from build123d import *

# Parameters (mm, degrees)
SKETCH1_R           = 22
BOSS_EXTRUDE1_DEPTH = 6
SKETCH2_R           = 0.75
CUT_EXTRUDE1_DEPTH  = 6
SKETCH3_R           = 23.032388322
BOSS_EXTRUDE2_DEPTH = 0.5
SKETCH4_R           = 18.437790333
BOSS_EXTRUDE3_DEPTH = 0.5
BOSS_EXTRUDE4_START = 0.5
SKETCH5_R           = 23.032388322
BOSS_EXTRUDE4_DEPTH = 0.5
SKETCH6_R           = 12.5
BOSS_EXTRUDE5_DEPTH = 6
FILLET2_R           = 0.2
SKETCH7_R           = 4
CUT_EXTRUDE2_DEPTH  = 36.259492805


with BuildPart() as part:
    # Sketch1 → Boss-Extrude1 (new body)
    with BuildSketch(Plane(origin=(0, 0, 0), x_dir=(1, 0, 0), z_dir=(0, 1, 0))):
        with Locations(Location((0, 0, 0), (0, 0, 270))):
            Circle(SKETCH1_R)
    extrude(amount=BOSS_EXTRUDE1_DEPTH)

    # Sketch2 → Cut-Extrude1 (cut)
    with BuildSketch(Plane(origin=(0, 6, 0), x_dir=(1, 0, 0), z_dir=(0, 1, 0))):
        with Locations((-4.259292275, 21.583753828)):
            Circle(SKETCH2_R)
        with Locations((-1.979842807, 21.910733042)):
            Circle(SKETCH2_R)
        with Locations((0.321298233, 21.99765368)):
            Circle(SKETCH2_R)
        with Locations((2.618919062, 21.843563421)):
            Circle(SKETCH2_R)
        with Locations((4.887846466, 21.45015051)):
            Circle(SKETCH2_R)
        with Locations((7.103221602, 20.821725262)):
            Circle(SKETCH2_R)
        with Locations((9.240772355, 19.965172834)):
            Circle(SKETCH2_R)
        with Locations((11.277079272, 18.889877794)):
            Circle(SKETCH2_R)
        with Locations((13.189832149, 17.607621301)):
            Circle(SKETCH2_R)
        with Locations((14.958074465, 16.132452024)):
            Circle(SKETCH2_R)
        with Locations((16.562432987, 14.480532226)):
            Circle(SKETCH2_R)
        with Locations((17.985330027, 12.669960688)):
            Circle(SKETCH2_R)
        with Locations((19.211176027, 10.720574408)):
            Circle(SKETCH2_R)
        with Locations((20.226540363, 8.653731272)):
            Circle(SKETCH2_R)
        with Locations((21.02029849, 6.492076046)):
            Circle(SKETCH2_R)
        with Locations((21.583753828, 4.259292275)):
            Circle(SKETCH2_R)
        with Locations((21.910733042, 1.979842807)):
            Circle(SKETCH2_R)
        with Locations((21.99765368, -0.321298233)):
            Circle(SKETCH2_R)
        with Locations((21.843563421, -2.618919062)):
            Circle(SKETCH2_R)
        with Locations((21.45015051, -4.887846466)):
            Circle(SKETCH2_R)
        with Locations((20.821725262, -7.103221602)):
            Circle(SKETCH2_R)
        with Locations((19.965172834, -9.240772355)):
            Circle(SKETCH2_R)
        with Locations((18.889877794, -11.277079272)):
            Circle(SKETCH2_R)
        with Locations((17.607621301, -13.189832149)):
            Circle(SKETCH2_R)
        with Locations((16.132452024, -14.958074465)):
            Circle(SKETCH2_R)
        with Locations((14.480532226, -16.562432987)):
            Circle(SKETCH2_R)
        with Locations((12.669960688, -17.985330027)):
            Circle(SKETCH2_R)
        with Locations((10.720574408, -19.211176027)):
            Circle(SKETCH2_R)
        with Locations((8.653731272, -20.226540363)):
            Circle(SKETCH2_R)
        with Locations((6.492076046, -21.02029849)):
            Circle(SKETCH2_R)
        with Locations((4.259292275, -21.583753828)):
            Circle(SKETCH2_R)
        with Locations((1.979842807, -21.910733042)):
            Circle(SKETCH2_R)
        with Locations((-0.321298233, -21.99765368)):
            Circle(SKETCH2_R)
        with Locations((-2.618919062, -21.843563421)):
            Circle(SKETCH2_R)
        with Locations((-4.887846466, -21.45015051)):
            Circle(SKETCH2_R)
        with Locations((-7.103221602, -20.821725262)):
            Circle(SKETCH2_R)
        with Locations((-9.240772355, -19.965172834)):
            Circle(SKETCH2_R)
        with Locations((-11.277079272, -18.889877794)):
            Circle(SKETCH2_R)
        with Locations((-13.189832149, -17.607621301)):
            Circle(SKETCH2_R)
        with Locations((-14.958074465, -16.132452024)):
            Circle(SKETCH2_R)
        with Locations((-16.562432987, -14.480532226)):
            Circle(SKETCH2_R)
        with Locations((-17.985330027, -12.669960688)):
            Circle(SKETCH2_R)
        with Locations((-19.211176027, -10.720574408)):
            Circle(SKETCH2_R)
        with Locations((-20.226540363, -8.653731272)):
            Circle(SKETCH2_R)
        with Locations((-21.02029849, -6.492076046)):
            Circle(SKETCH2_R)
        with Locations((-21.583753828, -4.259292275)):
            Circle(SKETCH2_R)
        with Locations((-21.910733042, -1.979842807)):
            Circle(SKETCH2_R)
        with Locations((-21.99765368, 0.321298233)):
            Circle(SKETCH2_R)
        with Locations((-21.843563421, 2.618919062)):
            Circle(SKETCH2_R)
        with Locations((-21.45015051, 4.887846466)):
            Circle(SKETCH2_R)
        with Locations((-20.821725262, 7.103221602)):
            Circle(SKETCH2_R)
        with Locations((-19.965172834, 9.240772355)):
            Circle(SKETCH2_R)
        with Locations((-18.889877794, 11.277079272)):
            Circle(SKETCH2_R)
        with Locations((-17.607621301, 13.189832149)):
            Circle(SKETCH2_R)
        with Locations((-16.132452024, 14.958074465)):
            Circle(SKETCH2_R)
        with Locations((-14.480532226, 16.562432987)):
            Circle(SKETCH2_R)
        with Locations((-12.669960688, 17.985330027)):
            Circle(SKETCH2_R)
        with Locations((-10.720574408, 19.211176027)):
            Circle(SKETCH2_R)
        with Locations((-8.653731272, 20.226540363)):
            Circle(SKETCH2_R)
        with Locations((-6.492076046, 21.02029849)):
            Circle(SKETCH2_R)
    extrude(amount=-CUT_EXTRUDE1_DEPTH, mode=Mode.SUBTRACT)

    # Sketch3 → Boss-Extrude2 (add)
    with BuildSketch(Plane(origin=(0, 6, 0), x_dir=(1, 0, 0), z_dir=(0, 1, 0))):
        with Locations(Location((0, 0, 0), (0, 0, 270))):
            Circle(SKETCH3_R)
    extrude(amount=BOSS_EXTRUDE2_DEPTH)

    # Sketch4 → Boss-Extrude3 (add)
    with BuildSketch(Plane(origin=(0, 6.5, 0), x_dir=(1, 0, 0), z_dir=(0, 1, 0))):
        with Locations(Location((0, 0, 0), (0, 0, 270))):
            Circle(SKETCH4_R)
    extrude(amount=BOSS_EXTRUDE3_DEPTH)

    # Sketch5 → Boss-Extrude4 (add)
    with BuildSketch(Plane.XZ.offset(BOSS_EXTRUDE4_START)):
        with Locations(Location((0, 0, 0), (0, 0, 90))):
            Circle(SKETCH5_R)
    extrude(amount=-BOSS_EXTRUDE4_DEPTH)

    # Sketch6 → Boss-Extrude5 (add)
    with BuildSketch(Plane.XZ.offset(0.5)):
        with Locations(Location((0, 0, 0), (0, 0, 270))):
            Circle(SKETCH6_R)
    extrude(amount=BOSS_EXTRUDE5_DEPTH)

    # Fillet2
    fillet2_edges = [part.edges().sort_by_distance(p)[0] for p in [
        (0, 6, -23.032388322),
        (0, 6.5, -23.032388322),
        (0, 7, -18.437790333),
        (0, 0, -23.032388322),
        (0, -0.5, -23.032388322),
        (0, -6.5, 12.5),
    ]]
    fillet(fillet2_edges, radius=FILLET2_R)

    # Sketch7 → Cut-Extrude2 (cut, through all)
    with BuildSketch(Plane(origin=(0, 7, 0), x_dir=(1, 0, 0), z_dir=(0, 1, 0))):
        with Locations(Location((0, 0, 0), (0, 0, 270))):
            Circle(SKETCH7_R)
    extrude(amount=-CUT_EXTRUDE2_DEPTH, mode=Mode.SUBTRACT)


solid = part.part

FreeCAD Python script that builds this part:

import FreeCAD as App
import Part
import Sketcher
Q = App.Units.Quantity


def edges_at(feature, points):
    """Names of the edges that pass closest to the given points."""
    edges = feature.Shape.Edges
    near = lambda p: min(range(len(edges)), key=lambda i: edges[i].distToShape(Part.Vertex(*p))[0])
    return sorted({f"Edge{near(p) + 1}" for p in points})

doc = App.newDocument("Part")
body = doc.addObject("PartDesign::Body", "Body")

# Sketch on XZ plane
sketch1 = body.newObject("Sketcher::SketchObject", "Sketch")
sketch1.AttachmentSupport = (doc.getObject("XZ_Plane"), [""])
sketch1.MapMode = "FlatFace"
sketch1.addGeometry(Part.Circle(App.Vector(0, 0, 0), App.Vector(0, 0, 1), 22), False)
sketch1.addConstraint(Sketcher.Constraint("Coincident", 0, 3, -1, 1))
sketch1.addConstraint(Sketcher.Constraint("Diameter", 0, Q("44 mm")))
pad1 = body.newObject("PartDesign::Pad", "Pad")
pad1.Profile = sketch1
pad1.Length = 6
pad1.Reversed = True

# Sketch on XZ plane
sketch2 = body.newObject("Sketcher::SketchObject", "Sketch001")
sketch2.AttachmentSupport = (doc.getObject("XZ_Plane"), [""])
sketch2.MapMode = "FlatFace"
sketch2.AttachmentOffset = App.Placement(App.Vector(0, 0, -6), App.Rotation())
sketch2.addGeometry(Part.Circle(App.Vector(-4.3, -21.6, 0), App.Vector(0, 0, 1), 0.8), False)
sketch2.addGeometry(Part.Circle(App.Vector(-2, -21.9, 0), App.Vector(0, 0, 1), 0.8), False)
sketch2.addGeometry(Part.Circle(App.Vector(0.3, -22, 0), App.Vector(0, 0, 1), 0.8), False)
sketch2.addGeometry(Part.Circle(App.Vector(2.6, -21.8, 0), App.Vector(0, 0, 1), 0.8), False)
sketch2.addGeometry(Part.Circle(App.Vector(4.9, -21.5, 0), App.Vector(0, 0, 1), 0.8), False)
sketch2.addGeometry(Part.Circle(App.Vector(7.1, -20.8, 0), App.Vector(0, 0, 1), 0.8), False)
sketch2.addGeometry(Part.Circle(App.Vector(9.2, -20, 0), App.Vector(0, 0, 1), 0.8), False)
sketch2.addGeometry(Part.Circle(App.Vector(11.3, -18.9, 0), App.Vector(0, 0, 1), 0.8), False)
sketch2.addGeometry(Part.Circle(App.Vector(13.2, -17.6, 0), App.Vector(0, 0, 1), 0.8), False)
sketch2.addGeometry(Part.Circle(App.Vector(15, -16.1, 0), App.Vector(0, 0, 1), 0.8), False)
sketch2.addGeometry(Part.Circle(App.Vector(16.6, -14.5, 0), App.Vector(0, 0, 1), 0.8), False)
sketch2.addGeometry(Part.Circle(App.Vector(18, -12.7, 0), App.Vector(0, 0, 1), 0.8), False)
sketch2.addGeometry(Part.Circle(App.Vector(19.2, -10.7, 0), App.Vector(0, 0, 1), 0.8), False)
sketch2.addGeometry(Part.Circle(App.Vector(20.2, -8.7, 0), App.Vector(0, 0, 1), 0.8), False)
sketch2.addGeometry(Part.Circle(App.Vector(21, -6.5, 0), App.Vector(0, 0, 1), 0.8), False)
sketch2.addGeometry(Part.Circle(App.Vector(21.6, -4.3, 0), App.Vector(0, 0, 1), 0.8), False)
sketch2.addGeometry(Part.Circle(App.Vector(21.9, -2, 0), App.Vector(0, 0, 1), 0.8), False)
sketch2.addGeometry(Part.Circle(App.Vector(22, 0.3, 0), App.Vector(0, 0, 1), 0.8), False)
sketch2.addGeometry(Part.Circle(App.Vector(21.8, 2.6, 0), App.Vector(0, 0, 1), 0.8), False)
sketch2.addGeometry(Part.Circle(App.Vector(21.5, 4.9, 0), App.Vector(0, 0, 1), 0.8), False)
sketch2.addGeometry(Part.Circle(App.Vector(20.8, 7.1, 0), App.Vector(0, 0, 1), 0.8), False)
sketch2.addGeometry(Part.Circle(App.Vector(20, 9.2, 0), App.Vector(0, 0, 1), 0.8), False)
sketch2.addGeometry(Part.Circle(App.Vector(18.9, 11.3, 0), App.Vector(0, 0, 1), 0.8), False)
sketch2.addGeometry(Part.Circle(App.Vector(17.6, 13.2, 0), App.Vector(0, 0, 1), 0.8), False)
sketch2.addGeometry(Part.Circle(App.Vector(16.1, 15, 0), App.Vector(0, 0, 1), 0.8), False)
sketch2.addGeometry(Part.Circle(App.Vector(14.5, 16.6, 0), App.Vector(0, 0, 1), 0.8), False)
sketch2.addGeometry(Part.Circle(App.Vector(12.7, 18, 0), App.Vector(0, 0, 1), 0.8), False)
sketch2.addGeometry(Part.Circle(App.Vector(10.7, 19.2, 0), App.Vector(0, 0, 1), 0.8), False)
sketch2.addGeometry(Part.Circle(App.Vector(8.7, 20.2, 0), App.Vector(0, 0, 1), 0.8), False)
sketch2.addGeometry(Part.Circle(App.Vector(6.5, 21, 0), App.Vector(0, 0, 1), 0.8), False)
sketch2.addGeometry(Part.Circle(App.Vector(4.3, 21.6, 0), App.Vector(0, 0, 1), 0.8), False)
sketch2.addGeometry(Part.Circle(App.Vector(2, 21.9, 0), App.Vector(0, 0, 1), 0.8), False)
sketch2.addGeometry(Part.Circle(App.Vector(-0.3, 22, 0), App.Vector(0, 0, 1), 0.8), False)
sketch2.addGeometry(Part.Circle(App.Vector(-2.6, 21.8, 0), App.Vector(0, 0, 1), 0.8), False)
sketch2.addGeometry(Part.Circle(App.Vector(-4.9, 21.5, 0), App.Vector(0, 0, 1), 0.8), False)
sketch2.addGeometry(Part.Circle(App.Vector(-7.1, 20.8, 0), App.Vector(0, 0, 1), 0.8), False)
sketch2.addGeometry(Part.Circle(App.Vector(-9.2, 20, 0), App.Vector(0, 0, 1), 0.8), False)
sketch2.addGeometry(Part.Circle(App.Vector(-11.3, 18.9, 0), App.Vector(0, 0, 1), 0.8), False)
sketch2.addGeometry(Part.Circle(App.Vector(-13.2, 17.6, 0), App.Vector(0, 0, 1), 0.8), False)
sketch2.addGeometry(Part.Circle(App.Vector(-15, 16.1, 0), App.Vector(0, 0, 1), 0.8), False)
sketch2.addGeometry(Part.Circle(App.Vector(-16.6, 14.5, 0), App.Vector(0, 0, 1), 0.8), False)
sketch2.addGeometry(Part.Circle(App.Vector(-18, 12.7, 0), App.Vector(0, 0, 1), 0.8), False)
sketch2.addGeometry(Part.Circle(App.Vector(-19.2, 10.7, 0), App.Vector(0, 0, 1), 0.8), False)
sketch2.addGeometry(Part.Circle(App.Vector(-20.2, 8.7, 0), App.Vector(0, 0, 1), 0.8), False)
sketch2.addGeometry(Part.Circle(App.Vector(-21, 6.5, 0), App.Vector(0, 0, 1), 0.8), False)
sketch2.addGeometry(Part.Circle(App.Vector(-21.6, 4.3, 0), App.Vector(0, 0, 1), 0.8), False)
sketch2.addGeometry(Part.Circle(App.Vector(-21.9, 2, 0), App.Vector(0, 0, 1), 0.8), False)
sketch2.addGeometry(Part.Circle(App.Vector(-22, -0.3, 0), App.Vector(0, 0, 1), 0.8), False)
sketch2.addGeometry(Part.Circle(App.Vector(-21.8, -2.6, 0), App.Vector(0, 0, 1), 0.8), False)
sketch2.addGeometry(Part.Circle(App.Vector(-21.5, -4.9, 0), App.Vector(0, 0, 1), 0.8), False)
sketch2.addGeometry(Part.Circle(App.Vector(-20.8, -7.1, 0), App.Vector(0, 0, 1), 0.8), False)
sketch2.addGeometry(Part.Circle(App.Vector(-20, -9.2, 0), App.Vector(0, 0, 1), 0.8), False)
sketch2.addGeometry(Part.Circle(App.Vector(-18.9, -11.3, 0), App.Vector(0, 0, 1), 0.8), False)
sketch2.addGeometry(Part.Circle(App.Vector(-17.6, -13.2, 0), App.Vector(0, 0, 1), 0.8), False)
sketch2.addGeometry(Part.Circle(App.Vector(-16.1, -15, 0), App.Vector(0, 0, 1), 0.8), False)
sketch2.addGeometry(Part.Circle(App.Vector(-14.5, -16.6, 0), App.Vector(0, 0, 1), 0.8), False)
sketch2.addGeometry(Part.Circle(App.Vector(-12.7, -18, 0), App.Vector(0, 0, 1), 0.8), False)
sketch2.addGeometry(Part.Circle(App.Vector(-10.7, -19.2, 0), App.Vector(0, 0, 1), 0.8), False)
sketch2.addGeometry(Part.Circle(App.Vector(-8.7, -20.2, 0), App.Vector(0, 0, 1), 0.8), False)
sketch2.addGeometry(Part.Circle(App.Vector(-6.5, -21, 0), App.Vector(0, 0, 1), 0.8), False)
sketch2.addConstraint(Sketcher.Constraint("Equal", 0, 1))
sketch2.addConstraint(Sketcher.Constraint("Equal", 1, 2))
sketch2.addConstraint(Sketcher.Constraint("Equal", 2, 3))
sketch2.addConstraint(Sketcher.Constraint("Equal", 3, 4))
sketch2.addConstraint(Sketcher.Constraint("Equal", 4, 5))
sketch2.addConstraint(Sketcher.Constraint("Equal", 5, 6))
sketch2.addConstraint(Sketcher.Constraint("Equal", 6, 7))
sketch2.addConstraint(Sketcher.Constraint("Equal", 7, 8))
sketch2.addConstraint(Sketcher.Constraint("Equal", 8, 9))
sketch2.addConstraint(Sketcher.Constraint("Equal", 9, 10))
sketch2.addConstraint(Sketcher.Constraint("Equal", 10, 11))
sketch2.addConstraint(Sketcher.Constraint("Equal", 11, 12))
sketch2.addConstraint(Sketcher.Constraint("Equal", 12, 13))
sketch2.addConstraint(Sketcher.Constraint("Equal", 13, 14))
sketch2.addConstraint(Sketcher.Constraint("Equal", 14, 15))
sketch2.addConstraint(Sketcher.Constraint("Equal", 15, 16))
sketch2.addConstraint(Sketcher.Constraint("Equal", 16, 17))
sketch2.addConstraint(Sketcher.Constraint("Equal", 17, 18))
sketch2.addConstraint(Sketcher.Constraint("Equal", 18, 19))
sketch2.addConstraint(Sketcher.Constraint("Equal", 19, 20))
sketch2.addConstraint(Sketcher.Constraint("Equal", 20, 21))
sketch2.addConstraint(Sketcher.Constraint("Equal", 21, 22))
sketch2.addConstraint(Sketcher.Constraint("Equal", 22, 23))
sketch2.addConstraint(Sketcher.Constraint("Equal", 23, 24))
sketch2.addConstraint(Sketcher.Constraint("Equal", 24, 25))
sketch2.addConstraint(Sketcher.Constraint("Equal", 25, 26))
sketch2.addConstraint(Sketcher.Constraint("Equal", 26, 27))
sketch2.addConstraint(Sketcher.Constraint("Equal", 27, 28))
sketch2.addConstraint(Sketcher.Constraint("Equal", 28, 29))
sketch2.addConstraint(Sketcher.Constraint("Equal", 29, 30))
sketch2.addConstraint(Sketcher.Constraint("Equal", 30, 31))
sketch2.addConstraint(Sketcher.Constraint("Equal", 31, 32))
sketch2.addConstraint(Sketcher.Constraint("Equal", 32, 33))
sketch2.addConstraint(Sketcher.Constraint("Equal", 33, 34))
sketch2.addConstraint(Sketcher.Constraint("Equal", 34, 35))
sketch2.addConstraint(Sketcher.Constraint("Equal", 35, 36))
sketch2.addConstraint(Sketcher.Constraint("Equal", 36, 37))
sketch2.addConstraint(Sketcher.Constraint("Equal", 37, 38))
sketch2.addConstraint(Sketcher.Constraint("Equal", 38, 39))
sketch2.addConstraint(Sketcher.Constraint("Equal", 39, 40))
sketch2.addConstraint(Sketcher.Constraint("Equal", 40, 41))
sketch2.addConstraint(Sketcher.Constraint("Equal", 41, 42))
sketch2.addConstraint(Sketcher.Constraint("Equal", 42, 43))
sketch2.addConstraint(Sketcher.Constraint("Equal", 43, 44))
sketch2.addConstraint(Sketcher.Constraint("Equal", 44, 45))
sketch2.addConstraint(Sketcher.Constraint("Equal", 45, 46))
sketch2.addConstraint(Sketcher.Constraint("Equal", 46, 47))
sketch2.addConstraint(Sketcher.Constraint("Equal", 47, 48))
sketch2.addConstraint(Sketcher.Constraint("Equal", 48, 49))
sketch2.addConstraint(Sketcher.Constraint("Equal", 49, 50))
sketch2.addConstraint(Sketcher.Constraint("Equal", 50, 51))
sketch2.addConstraint(Sketcher.Constraint("Equal", 51, 52))
sketch2.addConstraint(Sketcher.Constraint("Equal", 52, 53))
sketch2.addConstraint(Sketcher.Constraint("Equal", 53, 54))
sketch2.addConstraint(Sketcher.Constraint("Equal", 54, 55))
sketch2.addConstraint(Sketcher.Constraint("Equal", 55, 56))
sketch2.addConstraint(Sketcher.Constraint("Equal", 56, 57))
sketch2.addConstraint(Sketcher.Constraint("Equal", 57, 58))
sketch2.addConstraint(Sketcher.Constraint("Equal", 58, 59))
sketch2.addConstraint(Sketcher.Constraint("Symmetric", 0, 3, 30, 3, -1, 1))
sketch2.addConstraint(Sketcher.Constraint("Symmetric", 1, 3, 31, 3, -1, 1))
sketch2.addConstraint(Sketcher.Constraint("Symmetric", 2, 3, 32, 3, -1, 1))
sketch2.addConstraint(Sketcher.Constraint("Symmetric", 3, 3, 33, 3, -1, 1))
sketch2.addConstraint(Sketcher.Constraint("Symmetric", 4, 3, 34, 3, -1, 1))
sketch2.addConstraint(Sketcher.Constraint("Symmetric", 5, 3, 35, 3, -1, 1))
sketch2.addConstraint(Sketcher.Constraint("Symmetric", 6, 3, 36, 3, -1, 1))
sketch2.addConstraint(Sketcher.Constraint("Symmetric", 7, 3, 37, 3, -1, 1))
sketch2.addConstraint(Sketcher.Constraint("Symmetric", 8, 3, 38, 3, -1, 1))
sketch2.addConstraint(Sketcher.Constraint("Symmetric", 9, 3, 39, 3, -1, 1))
sketch2.addConstraint(Sketcher.Constraint("Symmetric", 10, 3, 40, 3, -1, 1))
sketch2.addConstraint(Sketcher.Constraint("Symmetric", 11, 3, 41, 3, -1, 1))
sketch2.addConstraint(Sketcher.Constraint("Symmetric", 12, 3, 42, 3, -1, 1))
sketch2.addConstraint(Sketcher.Constraint("Symmetric", 13, 3, 43, 3, -1, 1))
sketch2.addConstraint(Sketcher.Constraint("Symmetric", 14, 3, 44, 3, -1, 1))
sketch2.addConstraint(Sketcher.Constraint("Symmetric", 15, 3, 45, 3, -1, 1))
sketch2.addConstraint(Sketcher.Constraint("Symmetric", 16, 3, 46, 3, -1, 1))
sketch2.addConstraint(Sketcher.Constraint("Symmetric", 17, 3, 47, 3, -1, 1))
sketch2.addConstraint(Sketcher.Constraint("Symmetric", 18, 3, 48, 3, -1, 1))
sketch2.addConstraint(Sketcher.Constraint("Symmetric", 19, 3, 49, 3, -1, 1))
sketch2.addConstraint(Sketcher.Constraint("Symmetric", 20, 3, 50, 3, -1, 1))
sketch2.addConstraint(Sketcher.Constraint("Symmetric", 21, 3, 51, 3, -1, 1))
sketch2.addConstraint(Sketcher.Constraint("Symmetric", 22, 3, 52, 3, -1, 1))
sketch2.addConstraint(Sketcher.Constraint("Symmetric", 23, 3, 53, 3, -1, 1))
sketch2.addConstraint(Sketcher.Constraint("Symmetric", 24, 3, 54, 3, -1, 1))
sketch2.addConstraint(Sketcher.Constraint("Symmetric", 25, 3, 55, 3, -1, 1))
sketch2.addConstraint(Sketcher.Constraint("Symmetric", 26, 3, 56, 3, -1, 1))
sketch2.addConstraint(Sketcher.Constraint("Symmetric", 27, 3, 57, 3, -1, 1))
sketch2.addConstraint(Sketcher.Constraint("Symmetric", 28, 3, 58, 3, -1, 1))
sketch2.addConstraint(Sketcher.Constraint("Symmetric", 29, 3, 59, 3, -1, 1))
sketch2.addConstraint(Sketcher.Constraint("Diameter", 0, Q("1.5 mm")))
sketch2.addConstraint(Sketcher.Constraint("DistanceX", -1, 1, 2, 3, Q("0.321298 mm")))
sketch2.addConstraint(Sketcher.Constraint("DistanceX", -1, 1, 14, 3, Q("21.020298 mm")))
sketch2.addConstraint(Sketcher.Constraint("DistanceY", -1, 1, 17, 3, Q("0.321298 mm")))
sketch2.addConstraint(Sketcher.Constraint("DistanceY", -1, 1, 29, 3, Q("21.020298 mm")))
sketch2.addConstraint(Sketcher.Constraint("DistanceY", 2, 3, 0, 3, Q("0.4139 mm")))
sketch2.addConstraint(Sketcher.Constraint("DistanceY", 4, 3, 9, 3, Q("5.317698 mm")))
sketch2.addConstraint(Sketcher.Constraint("DistanceX", 8, 3, 10, 3, Q("3.372601 mm")))
sketch2.addConstraint(Sketcher.Constraint("DistanceX", 9, 3, 12, 3, Q("4.253102 mm")))
sketch2.addConstraint(Sketcher.Constraint("DistanceY", 10, 3, 13, 3, Q("5.826801 mm")))
sketch2.addConstraint(Sketcher.Constraint("DistanceY", 12, 3, 14, 3, Q("4.228498 mm")))
sketch2.addConstraint(Sketcher.Constraint("DistanceX", 15, 3, 17, 3, Q("0.4139 mm")))
sketch2.addConstraint(Sketcher.Constraint("DistanceX", 24, 3, 19, 3, Q("5.317698 mm")))
sketch2.addConstraint(Sketcher.Constraint("DistanceY", 23, 3, 25, 3, Q("3.372601 mm")))
sketch2.addConstraint(Sketcher.Constraint("DistanceY", 24, 3, 27, 3, Q("4.253102 mm")))
sketch2.addConstraint(Sketcher.Constraint("DistanceX", 28, 3, 25, 3, Q("5.826801 mm")))
sketch2.addConstraint(Sketcher.Constraint("DistanceX", 29, 3, 27, 3, Q("4.228498 mm")))
sketch2.addConstraint(Sketcher.Constraint("DistanceX", -1, 1, 3, 3, Q("2.618919 mm")))
sketch2.addConstraint(Sketcher.Constraint("DistanceY", 4, 3, -1, 1, Q("21.450151 mm")))
sketch2.addConstraint(Sketcher.Constraint("DistanceX", -1, 1, 5, 3, Q("7.103222 mm")))
sketch2.addConstraint(Sketcher.Constraint("DistanceX", -1, 1, 7, 3, Q("11.277079 mm")))
sketch2.addConstraint(Sketcher.Constraint("DistanceY", 8, 3, -1, 1, Q("17.607621 mm")))
sketch2.addConstraint(Sketcher.Constraint("DistanceX", -1, 1, 11, 3, Q("17.98533 mm")))
sketch2.addConstraint(Sketcher.Constraint("DistanceY", 11, 3, -1, 1, Q("12.669961 mm")))
sketch2.addConstraint(Sketcher.Constraint("DistanceX", -1, 1, 13, 3, Q("20.22654 mm")))
sketch2.addConstraint(Sketcher.Constraint("DistanceY", 13, 3, -1, 1, Q("8.653731 mm")))
sketch2.addConstraint(Sketcher.Constraint("DistanceY", -1, 1, 18, 3, Q("2.618919 mm")))
sketch2.addConstraint(Sketcher.Constraint("DistanceX", -1, 1, 19, 3, Q("21.450151 mm")))
sketch2.addConstraint(Sketcher.Constraint("DistanceY", -1, 1, 20, 3, Q("7.103222 mm")))
sketch2.addConstraint(Sketcher.Constraint("DistanceY", -1, 1, 22, 3, Q("11.277079 mm")))
sketch2.addConstraint(Sketcher.Constraint("DistanceX", -1, 1, 23, 3, Q("17.607621 mm")))
sketch2.addConstraint(Sketcher.Constraint("DistanceX", -1, 1, 26, 3, Q("12.669961 mm")))
sketch2.addConstraint(Sketcher.Constraint("DistanceY", -1, 1, 26, 3, Q("17.98533 mm")))
sketch2.addConstraint(Sketcher.Constraint("DistanceX", -1, 1, 28, 3, Q("8.653731 mm")))
sketch2.addConstraint(Sketcher.Constraint("DistanceY", -1, 1, 28, 3, Q("20.22654 mm")))
sketch2.addConstraint(Sketcher.Constraint("DistanceX", 0, 3, 1, 3, Q("2.279449 mm")))
sketch2.addConstraint(Sketcher.Constraint("DistanceY", 1, 3, 0, 3, Q("0.326979 mm")))
sketch2.addConstraint(Sketcher.Constraint("DistanceX", 1, 3, 2, 3, Q("2.301141 mm")))
sketch2.addConstraint(Sketcher.Constraint("DistanceY", 2, 3, 3, 3, Q("0.15409 mm")))
sketch2.addConstraint(Sketcher.Constraint("DistanceX", 2, 3, 4, 3, Q("4.566548 mm")))
sketch2.addConstraint(Sketcher.Constraint("DistanceY", 3, 3, 5, 3, Q("1.021838 mm")))
sketch2.addConstraint(Sketcher.Constraint("DistanceX", 5, 3, 6, 3, Q("2.137551 mm")))
sketch2.addConstraint(Sketcher.Constraint("DistanceY", 3, 3, 6, 3, Q("1.878391 mm")))
sketch2.addConstraint(Sketcher.Constraint("DistanceX", 6, 3, 8, 3, Q("3.94906 mm")))
sketch2.addConstraint(Sketcher.Constraint("DistanceY", 6, 3, 8, 3, Q("2.357552 mm")))
sketch2.addConstraint(Sketcher.Constraint("DistanceX", 9, 3, 10, 3, Q("1.604359 mm")))
sketch2.addConstraint(Sketcher.Constraint("DistanceY", 13, 3, 15, 3, Q("4.394439 mm")))
sketch2.addConstraint(Sketcher.Constraint("DistanceX", 10, 3, 15, 3, Q("5.021321 mm")))
sketch2.addConstraint(Sketcher.Constraint("DistanceX", 15, 3, 16, 3, Q("0.326979 mm")))
sketch2.addConstraint(Sketcher.Constraint("DistanceY", 15, 3, 16, 3, Q("2.279449 mm")))
sketch2.addConstraint(Sketcher.Constraint("DistanceY", 12, 3, 16, 3, Q("8.740732 mm")))
sketch2.addConstraint(Sketcher.Constraint("DistanceX", 18, 3, 17, 3, Q("0.15409 mm")))
sketch2.addConstraint(Sketcher.Constraint("DistanceY", 17, 3, 19, 3, Q("4.566548 mm")))
sketch2.addConstraint(Sketcher.Constraint("DistanceX", 20, 3, 18, 3, Q("1.021838 mm")))
sketch2.addConstraint(Sketcher.Constraint("DistanceY", 20, 3, 21, 3, Q("2.137551 mm")))
sketch2.addConstraint(Sketcher.Constraint("DistanceX", 21, 3, 18, 3, Q("1.878391 mm")))
sketch2.addConstraint(Sketcher.Constraint("DistanceY", 21, 3, 23, 3, Q("3.94906 mm")))
sketch2.addConstraint(Sketcher.Constraint("DistanceY", 24, 3, 25, 3, Q("1.604359 mm")))
sketch2.addConstraint(Sketcher.Constraint("DistanceX", 31, 3, 27, 3, Q("8.740732 mm")))
sketch2.addConstraint(Sketcher.Constraint("DistanceY", 7, 3, -1, 1, Q("18.889878 mm")))
sketch2.addConstraint(Sketcher.Constraint("DistanceX", -1, 1, 22, 3, Q("18.889878 mm")))
pocket1 = body.newObject("PartDesign::Pocket", "Pocket")
pocket1.Profile = sketch2
pocket1.Length = 6
pocket1.Reversed = True

# Sketch on XZ plane
sketch3 = body.newObject("Sketcher::SketchObject", "Sketch002")
sketch3.AttachmentSupport = (doc.getObject("XZ_Plane"), [""])
sketch3.MapMode = "FlatFace"
sketch3.AttachmentOffset = App.Placement(App.Vector(0, 0, -6), App.Rotation())
sketch3.addGeometry(Part.Circle(App.Vector(0, 0, 0), App.Vector(0, 0, 1), 23), False)
sketch3.addConstraint(Sketcher.Constraint("Coincident", 0, 3, -1, 1))
sketch3.addConstraint(Sketcher.Constraint("Diameter", 0, Q("46.064777 mm")))
pad2 = body.newObject("PartDesign::Pad", "Pad001")
pad2.Profile = sketch3
pad2.Length = 0.5
pad2.Reversed = True

# Sketch on XZ plane
sketch4 = body.newObject("Sketcher::SketchObject", "Sketch003")
sketch4.AttachmentSupport = (doc.getObject("XZ_Plane"), [""])
sketch4.MapMode = "FlatFace"
sketch4.AttachmentOffset = App.Placement(App.Vector(0, 0, -6.5), App.Rotation())
sketch4.addGeometry(Part.Circle(App.Vector(0, 0, 0), App.Vector(0, 0, 1), 18), False)
sketch4.addConstraint(Sketcher.Constraint("Coincident", 0, 3, -1, 1))
sketch4.addConstraint(Sketcher.Constraint("Diameter", 0, Q("36.875581 mm")))
pad3 = body.newObject("PartDesign::Pad", "Pad002")
pad3.Profile = sketch4
pad3.Length = 0.5
pad3.Reversed = True

# Sketch on XZ plane
sketch5 = body.newObject("Sketcher::SketchObject", "Sketch004")
sketch5.AttachmentSupport = (doc.getObject("XZ_Plane"), [""])
sketch5.MapMode = "FlatFace"
sketch5.AttachmentOffset = App.Placement(App.Vector(0, 0, 0.5), App.Rotation())
sketch5.addGeometry(Part.Circle(App.Vector(0, 0, 0), App.Vector(0, 0, 1), 23), False)
sketch5.addConstraint(Sketcher.Constraint("Coincident", 0, 3, -1, 1))
sketch5.addConstraint(Sketcher.Constraint("Diameter", 0, Q("46.064777 mm")))
pad4 = body.newObject("PartDesign::Pad", "Pad003")
pad4.Profile = sketch5
pad4.Length = 0.5
pad4.Reversed = True

# Sketch on XZ plane
sketch6 = body.newObject("Sketcher::SketchObject", "Sketch005")
sketch6.AttachmentSupport = (doc.getObject("XZ_Plane"), [""])
sketch6.MapMode = "FlatFace"
sketch6.AttachmentOffset = App.Placement(App.Vector(0, 0, 0.5), App.Rotation())
sketch6.addGeometry(Part.Circle(App.Vector(0, 0, 0), App.Vector(0, 0, 1), 12), False)
sketch6.addConstraint(Sketcher.Constraint("Coincident", 0, 3, -1, 1))
sketch6.addConstraint(Sketcher.Constraint("Diameter", 0, Q("25 mm")))
pad5 = body.newObject("PartDesign::Pad", "Pad004")
pad5.Profile = sketch6
pad5.Length = 6
doc.recompute()

fillet = body.newObject("PartDesign::Fillet", "Fillet")
fillet.Base = (pad5, edges_at(pad5, [
    (0, 6, -23.032),
    (0, 6.5, -23.032),
    (0, 7, -18.438),
    (0, 0, -23.032),
    (0, -0.5, -23.032),
    (0, -6.5, 12.5),
]))
fillet.Radius = 0.2

# Sketch on XZ plane
sketch7 = body.newObject("Sketcher::SketchObject", "Sketch006")
sketch7.AttachmentSupport = (doc.getObject("XZ_Plane"), [""])
sketch7.MapMode = "FlatFace"
sketch7.AttachmentOffset = App.Placement(App.Vector(0, 0, -7), App.Rotation())
sketch7.addGeometry(Part.Circle(App.Vector(0, 0, 0), App.Vector(0, 0, 1), 4), False)
sketch7.addConstraint(Sketcher.Constraint("Coincident", 0, 3, -1, 1))
sketch7.addConstraint(Sketcher.Constraint("Diameter", 0, Q("8 mm")))
pocket2 = body.newObject("PartDesign::Pocket", "Pocket001")
pocket2.Profile = sketch7
pocket2.Type = "ThroughAll"
pocket2.Reversed = True

doc.recompute()
